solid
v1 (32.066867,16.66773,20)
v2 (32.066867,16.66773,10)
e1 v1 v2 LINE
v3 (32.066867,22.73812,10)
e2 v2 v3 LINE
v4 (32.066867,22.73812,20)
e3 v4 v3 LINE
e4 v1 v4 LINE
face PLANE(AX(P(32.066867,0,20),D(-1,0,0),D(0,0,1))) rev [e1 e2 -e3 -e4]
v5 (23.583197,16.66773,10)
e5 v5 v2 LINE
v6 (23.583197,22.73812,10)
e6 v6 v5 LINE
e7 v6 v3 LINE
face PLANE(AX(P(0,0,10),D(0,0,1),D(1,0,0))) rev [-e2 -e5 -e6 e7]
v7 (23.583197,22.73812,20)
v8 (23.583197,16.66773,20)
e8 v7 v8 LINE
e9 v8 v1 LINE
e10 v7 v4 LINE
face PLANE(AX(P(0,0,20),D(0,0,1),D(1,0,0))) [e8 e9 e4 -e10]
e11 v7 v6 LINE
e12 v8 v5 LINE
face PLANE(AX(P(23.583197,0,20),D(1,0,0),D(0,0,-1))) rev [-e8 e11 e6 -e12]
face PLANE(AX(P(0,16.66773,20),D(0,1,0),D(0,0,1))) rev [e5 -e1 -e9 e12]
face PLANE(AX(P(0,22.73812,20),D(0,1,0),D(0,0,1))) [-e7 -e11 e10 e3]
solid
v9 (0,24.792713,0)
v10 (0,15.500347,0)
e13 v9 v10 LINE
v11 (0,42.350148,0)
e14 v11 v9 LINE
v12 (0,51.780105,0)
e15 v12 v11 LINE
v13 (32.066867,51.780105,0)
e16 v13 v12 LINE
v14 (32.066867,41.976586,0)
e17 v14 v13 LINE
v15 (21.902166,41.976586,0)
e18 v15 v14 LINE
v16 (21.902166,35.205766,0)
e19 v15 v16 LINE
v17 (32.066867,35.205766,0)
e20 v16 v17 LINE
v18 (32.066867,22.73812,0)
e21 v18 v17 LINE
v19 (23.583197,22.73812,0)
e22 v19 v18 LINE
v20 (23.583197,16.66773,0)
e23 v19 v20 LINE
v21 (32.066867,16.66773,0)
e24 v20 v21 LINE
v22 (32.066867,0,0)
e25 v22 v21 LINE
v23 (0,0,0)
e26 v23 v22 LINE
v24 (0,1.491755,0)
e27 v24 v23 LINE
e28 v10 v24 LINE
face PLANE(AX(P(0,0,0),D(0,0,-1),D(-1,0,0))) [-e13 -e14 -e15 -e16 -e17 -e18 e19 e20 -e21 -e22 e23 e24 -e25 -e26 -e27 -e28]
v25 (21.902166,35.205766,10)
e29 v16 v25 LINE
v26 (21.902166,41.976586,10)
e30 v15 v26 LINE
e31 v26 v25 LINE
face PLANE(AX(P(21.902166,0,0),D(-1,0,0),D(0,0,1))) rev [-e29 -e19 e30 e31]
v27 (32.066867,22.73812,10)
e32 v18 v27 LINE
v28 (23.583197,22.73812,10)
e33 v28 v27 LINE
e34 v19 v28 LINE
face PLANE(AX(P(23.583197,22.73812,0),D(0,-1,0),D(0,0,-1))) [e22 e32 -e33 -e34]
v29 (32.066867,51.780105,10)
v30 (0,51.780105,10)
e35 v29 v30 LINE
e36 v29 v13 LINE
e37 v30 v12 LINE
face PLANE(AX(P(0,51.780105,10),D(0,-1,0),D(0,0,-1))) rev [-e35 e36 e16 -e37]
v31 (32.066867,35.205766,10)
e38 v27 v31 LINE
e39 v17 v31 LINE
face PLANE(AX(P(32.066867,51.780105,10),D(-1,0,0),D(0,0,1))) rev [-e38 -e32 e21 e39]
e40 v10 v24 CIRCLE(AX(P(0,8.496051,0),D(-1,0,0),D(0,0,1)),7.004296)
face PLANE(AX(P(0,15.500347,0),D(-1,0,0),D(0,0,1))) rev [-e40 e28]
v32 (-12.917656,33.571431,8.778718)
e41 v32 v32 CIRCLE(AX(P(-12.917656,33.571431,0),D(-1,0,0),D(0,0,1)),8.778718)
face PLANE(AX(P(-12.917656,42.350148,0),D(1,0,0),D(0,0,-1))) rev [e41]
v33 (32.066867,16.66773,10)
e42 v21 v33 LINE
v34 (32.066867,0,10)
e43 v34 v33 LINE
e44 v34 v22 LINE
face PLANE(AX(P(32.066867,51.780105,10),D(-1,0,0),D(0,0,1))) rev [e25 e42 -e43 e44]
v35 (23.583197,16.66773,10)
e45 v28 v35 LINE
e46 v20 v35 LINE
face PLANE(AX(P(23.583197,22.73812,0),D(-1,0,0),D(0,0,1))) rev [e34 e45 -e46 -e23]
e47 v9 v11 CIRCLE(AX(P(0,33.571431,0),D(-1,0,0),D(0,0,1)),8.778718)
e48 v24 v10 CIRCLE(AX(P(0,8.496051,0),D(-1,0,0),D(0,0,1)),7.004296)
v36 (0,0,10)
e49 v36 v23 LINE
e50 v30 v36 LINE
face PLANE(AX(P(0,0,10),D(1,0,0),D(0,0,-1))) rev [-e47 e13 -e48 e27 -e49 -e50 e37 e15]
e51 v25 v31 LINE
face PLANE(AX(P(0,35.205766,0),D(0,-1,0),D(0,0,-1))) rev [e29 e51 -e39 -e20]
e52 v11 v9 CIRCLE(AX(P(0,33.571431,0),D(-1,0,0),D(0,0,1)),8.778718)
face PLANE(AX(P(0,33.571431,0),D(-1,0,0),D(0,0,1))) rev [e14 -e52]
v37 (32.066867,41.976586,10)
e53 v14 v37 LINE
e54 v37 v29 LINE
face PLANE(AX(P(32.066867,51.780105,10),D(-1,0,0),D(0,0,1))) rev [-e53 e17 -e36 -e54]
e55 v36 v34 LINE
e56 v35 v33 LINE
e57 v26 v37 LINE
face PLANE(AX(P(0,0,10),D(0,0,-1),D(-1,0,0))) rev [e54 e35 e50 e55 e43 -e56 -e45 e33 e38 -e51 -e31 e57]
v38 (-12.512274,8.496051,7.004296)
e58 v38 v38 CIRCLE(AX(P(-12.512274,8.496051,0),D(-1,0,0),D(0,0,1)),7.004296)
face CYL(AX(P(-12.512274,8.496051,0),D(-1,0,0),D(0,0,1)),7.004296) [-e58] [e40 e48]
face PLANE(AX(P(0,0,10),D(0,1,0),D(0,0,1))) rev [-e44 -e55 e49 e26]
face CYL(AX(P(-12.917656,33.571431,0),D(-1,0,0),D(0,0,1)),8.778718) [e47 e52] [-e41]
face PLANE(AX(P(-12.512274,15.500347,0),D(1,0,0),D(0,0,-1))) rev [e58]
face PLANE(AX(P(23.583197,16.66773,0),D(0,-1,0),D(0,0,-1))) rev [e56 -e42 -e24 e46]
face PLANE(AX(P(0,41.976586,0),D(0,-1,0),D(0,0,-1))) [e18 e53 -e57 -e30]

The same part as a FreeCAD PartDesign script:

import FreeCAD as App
import Part
import Sketcher
from FreeCAD import Vector
Q = App.Units.Quantity


def add_polygon(sketch, points):
    """Adds a closed chain of lines whose ends are joined by coincident constraints."""
    first, n = sketch.GeometryCount, len(points)
    for a, b in zip(points, points[1:] + points[:1]):
        sketch.addGeometry(Part.LineSegment(App.Vector(*a, 0), App.Vector(*b, 0)), False)
    for i in range(n):
        sketch.addConstraint(Sketcher.Constraint("Coincident", first + i, 2, first + (i + 1) % n, 1))

doc = App.newDocument("Part")
body = doc.addObject("PartDesign::Body", "Body")

# Sketch on XY plane
sketch1 = body.newObject("Sketcher::SketchObject", "Sketch")
sketch1.AttachmentSupport = (doc.getObject("XY_Plane"), [""])
sketch1.MapMode = "FlatFace"
add_polygon(sketch1, [(0, 51.780105), (0, 0), (32.066867, 0), (32.066867, 51.780105)])  # lines 0-3
sketch1.addConstraint(Sketcher.Constraint("Vertical", 0))
sketch1.addConstraint(Sketcher.Constraint("Horizontal", 1))
sketch1.addConstraint(Sketcher.Constraint("Vertical", 2))
sketch1.addConstraint(Sketcher.Constraint("Horizontal", 3))
sketch1.addConstraint(Sketcher.Constraint("Coincident", 0, 2, -1, 1))
sketch1.addConstraint(Sketcher.Constraint("DistanceX", 1, 1, 1, 2, Q("32.066867 mm")))
sketch1.addConstraint(Sketcher.Constraint("DistanceY", 0, 2, 0, 1, Q("51.780105 mm")))
pad1 = body.newObject("PartDesign::Pad", "Pad")
pad1.Profile = sketch1
pad1.Length = 10

# Sketch on XY plane
sketch2 = body.newObject("Sketcher::SketchObject", "Sketch001")
sketch2.AttachmentSupport = (doc.getObject("XY_Plane"), [""])
sketch2.MapMode = "FlatFace"
add_polygon(sketch2, [(-12.917656, 42.350148), (-12.917656, 33.571431), (0, 33.571431), (0, 42.350148)])  # lines 0-3
sketch2.addGeometry(Part.LineSegment(Vector(-12.917656, 33.571431, 0), Vector(0, 33.571431, 0)), True)  # axis
sketch2.addConstraint(Sketcher.Constraint("Vertical", 0))
sketch2.addConstraint(Sketcher.Constraint("Horizontal", 1))
sketch2.addConstraint(Sketcher.Constraint("Vertical", 2))
sketch2.addConstraint(Sketcher.Constraint("Horizontal", 3))
sketch2.addConstraint(Sketcher.Constraint("Horizontal", 4))
sketch2.addConstraint(Sketcher.Constraint("Coincident", 4, 1, 0, 2))
sketch2.addConstraint(Sketcher.Constraint("PointOnObject", 1, 2, -2))
sketch2.addConstraint(Sketcher.Constraint("PointOnObject", 4, 2, -2))
sketch2.addConstraint(Sketcher.Constraint("DistanceX", 1, 1, 1, 2, Q("12.917656 mm")))
sketch2.addConstraint(Sketcher.Constraint("DistanceY", 0, 2, 0, 1, Q("8.778718 mm")))
sketch2.addConstraint(Sketcher.Constraint("DistanceY", -1, 1, 0, 2, Q("33.571431 mm")))
revolution = body.newObject("PartDesign::Revolution", "Revolution")
revolution.Profile = sketch2
revolution.ReferenceAxis = (sketch2, ["Axis0"])
revolution.Angle = 360

# Sketch on XY plane
sketch3 = body.newObject("Sketcher::SketchObject", "Sketch002")
sketch3.AttachmentSupport = (doc.getObject("XY_Plane"), [""])
sketch3.MapMode = "FlatFace"
add_polygon(sketch3, [(-12.512274, 15.500347), (-12.512274, 8.496051), (0, 8.496051), (0, 15.500347)])  # lines 0-3
sketch3.addGeometry(Part.LineSegment(Vector(-12.512274, 8.496051, 0), Vector(0, 8.496051, 0)), True)  # axis
sketch3.addConstraint(Sketcher.Constraint("Vertical", 0))
sketch3.addConstraint(Sketcher.Constraint("Horizontal", 1))
sketch3.addConstraint(Sketcher.Constraint("Vertical", 2))
sketch3.addConstraint(Sketcher.Constraint("Horizontal", 3))
sketch3.addConstraint(Sketcher.Constraint("Horizontal", 4))
sketch3.addConstraint(Sketcher.Constraint("Coincident", 4, 1, 0, 2))
sketch3.addConstraint(Sketcher.Constraint("PointOnObject", 1, 2, -2))
sketch3.addConstraint(Sketcher.Constraint("PointOnObject", 4, 2, -2))
sketch3.addConstraint(Sketcher.Constraint("DistanceX", 1, 1, 1, 2, Q("12.512274 mm")))
sketch3.addConstraint(Sketcher.Constraint("DistanceY", 0, 2, 0, 1, Q("7.004296 mm")))
sketch3.addConstraint(Sketcher.Constraint("DistanceY", -1, 1, 0, 2, Q("8.496051 mm")))
revolution2 = body.newObject("PartDesign::Revolution", "Revolution001")
revolution2.Profile = sketch3
revolution2.ReferenceAxis = (sketch3, ["Axis0"])
revolution2.Angle = 360

# Sketch on XY plane
sketch4 = body.newObject("Sketcher::SketchObject", "Sketch003")
sketch4.AttachmentSupport = (doc.getObject("XY_Plane"), [""])
sketch4.MapMode = "FlatFace"
sketch4.AttachmentOffset = App.Placement(Vector(0, 0, 10), App.Rotation())
add_polygon(sketch4, [(21.902166, 41.976586), (21.902166, 35.205766), (32.066867, 35.205766), (32.066867, 41.976586)])  # lines 0-3
add_polygon(sketch4, [(23.583197, 22.73812), (23.583197, 16.66773), (32.066867, 16.66773), (32.066867, 22.73812)])  # lines 4-7
sketch4.addConstraint(Sketcher.Constraint("Vertical", 0))
sketch4.addConstraint(Sketcher.Constraint("Horizontal", 1))
sketch4.addConstraint(Sketcher.Constraint("Vertical", 2))
sketch4.addConstraint(Sketcher.Constraint("Horizontal", 3))
sketch4.addConstraint(Sketcher.Constraint("Vertical", 4))
sketch4.addConstraint(Sketcher.Constraint("Horizontal", 5))
sketch4.addConstraint(Sketcher.Constraint("Vertical", 6))
sketch4.addConstraint(Sketcher.Constraint("Horizontal", 7))
sketch4.addConstraint(Sketcher.Constraint("Vertical", 2, 2, 5, 2))
sketch4.addConstraint(Sketcher.Constraint("DistanceX", 1, 1, 1, 2, Q("10.164701 mm")))
sketch4.addConstraint(Sketcher.Constraint("DistanceX", 5, 1, 5, 2, Q("8.48367 mm")))
sketch4.addConstraint(Sketcher.Constraint("DistanceY", 0, 2, 0, 1, Q("6.770819 mm")))
sketch4.addConstraint(Sketcher.Constraint("DistanceY", 4, 2, 4, 1, Q("6.07039 mm")))
sketch4.addConstraint(Sketcher.Constraint("DistanceY", -1, 1, 4, 2, Q("16.66773 mm")))
sketch4.addConstraint(Sketcher.Constraint("DistanceX", -1, 1, 0, 2, Q("21.902166 mm")))
sketch4.addConstraint(Sketcher.Constraint("DistanceY", -1, 1, 0, 2, Q("35.205766 mm")))
pocket1 = body.newObject("PartDesign::Pocket", "Pocket")
pocket1.Profile = sketch4
pocket1.Length = 10
body2 = doc.addObject("PartDesign::Body", "Body001")

# Sketch on XY plane
sketch5 = body2.newObject("Sketcher::SketchObject", "Sketch004")
sketch5.AttachmentSupport = (doc.getObject("XY_Plane001"), [""])
sketch5.MapMode = "FlatFace"
sketch5.AttachmentOffset = App.Placement(Vector(0, 0, 10), App.Rotation())
add_polygon(sketch5, [(23.583197, 22.73812), (23.583197, 16.66773), (32.066867, 16.66773), (32.066867, 22.73812)])  # lines 0-3
sketch5.addConstraint(Sketcher.Constraint("Vertical", 0))
sketch5.addConstraint(Sketcher.Constraint("Horizontal", 1))
sketch5.addConstraint(Sketcher.Constraint("Vertical", 2))
sketch5.addConstraint(Sketcher.Constraint("Horizontal", 3))
sketch5.addConstraint(Sketcher.Constraint("DistanceX", 1, 1, 1, 2, Q("8.48367 mm")))
sketch5.addConstraint(Sketcher.Constraint("DistanceY", 0, 2, 0, 1, Q("6.07039 mm")))
sketch5.addConstraint(Sketcher.Constraint("DistanceY", -1, 1, 0, 2, Q("16.66773 mm")))
sketch5.addConstraint(Sketcher.Constraint("DistanceX", -1, 1, 0, 2, Q("23.583197 mm")))
pad2 = body2.newObject("PartDesign::Pad", "Pad001")
pad2.Profile = sketch5
pad2.Length = 10

doc.recompute()
